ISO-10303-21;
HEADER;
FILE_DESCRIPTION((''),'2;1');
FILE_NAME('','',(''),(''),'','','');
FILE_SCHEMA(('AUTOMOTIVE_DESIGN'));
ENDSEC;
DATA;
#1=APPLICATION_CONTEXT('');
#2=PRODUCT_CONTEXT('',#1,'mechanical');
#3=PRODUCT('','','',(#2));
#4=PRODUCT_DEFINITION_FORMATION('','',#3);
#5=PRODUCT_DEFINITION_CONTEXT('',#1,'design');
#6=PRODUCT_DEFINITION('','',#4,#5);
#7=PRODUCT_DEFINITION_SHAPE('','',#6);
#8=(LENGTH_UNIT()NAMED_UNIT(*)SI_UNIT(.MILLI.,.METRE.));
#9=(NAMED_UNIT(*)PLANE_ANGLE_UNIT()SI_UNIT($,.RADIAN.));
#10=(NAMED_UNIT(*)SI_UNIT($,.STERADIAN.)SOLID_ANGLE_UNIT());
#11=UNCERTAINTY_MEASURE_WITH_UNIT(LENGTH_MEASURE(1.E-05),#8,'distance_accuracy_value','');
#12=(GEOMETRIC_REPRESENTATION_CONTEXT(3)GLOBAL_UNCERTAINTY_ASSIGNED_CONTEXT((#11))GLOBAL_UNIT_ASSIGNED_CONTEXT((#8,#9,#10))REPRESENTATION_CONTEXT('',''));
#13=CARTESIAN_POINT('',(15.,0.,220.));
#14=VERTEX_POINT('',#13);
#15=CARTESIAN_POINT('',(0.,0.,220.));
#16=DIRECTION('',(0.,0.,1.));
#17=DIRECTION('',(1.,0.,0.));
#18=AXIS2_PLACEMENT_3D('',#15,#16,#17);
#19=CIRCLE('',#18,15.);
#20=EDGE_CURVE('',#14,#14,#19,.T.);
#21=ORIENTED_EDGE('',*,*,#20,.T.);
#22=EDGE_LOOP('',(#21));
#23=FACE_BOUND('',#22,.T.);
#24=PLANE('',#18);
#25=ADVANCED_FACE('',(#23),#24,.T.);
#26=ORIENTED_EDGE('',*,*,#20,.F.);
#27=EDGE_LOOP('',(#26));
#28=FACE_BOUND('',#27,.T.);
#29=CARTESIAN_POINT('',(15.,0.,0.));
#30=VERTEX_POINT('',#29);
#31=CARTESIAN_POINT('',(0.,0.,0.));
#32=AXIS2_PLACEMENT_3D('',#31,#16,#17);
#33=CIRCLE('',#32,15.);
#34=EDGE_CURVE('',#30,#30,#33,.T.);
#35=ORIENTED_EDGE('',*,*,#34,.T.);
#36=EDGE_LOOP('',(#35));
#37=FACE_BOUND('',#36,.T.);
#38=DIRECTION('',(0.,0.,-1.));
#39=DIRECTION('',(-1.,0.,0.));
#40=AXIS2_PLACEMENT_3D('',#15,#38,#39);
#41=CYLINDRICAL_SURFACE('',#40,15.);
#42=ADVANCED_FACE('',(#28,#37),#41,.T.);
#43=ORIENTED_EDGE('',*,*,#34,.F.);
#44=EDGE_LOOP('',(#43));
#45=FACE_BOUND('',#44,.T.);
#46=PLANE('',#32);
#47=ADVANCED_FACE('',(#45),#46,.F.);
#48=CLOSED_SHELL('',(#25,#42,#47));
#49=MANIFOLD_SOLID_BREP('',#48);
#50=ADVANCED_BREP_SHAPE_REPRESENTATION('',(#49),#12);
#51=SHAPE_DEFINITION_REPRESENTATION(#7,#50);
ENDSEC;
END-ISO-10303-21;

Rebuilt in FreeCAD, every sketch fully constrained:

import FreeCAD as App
import Part
import Sketcher

V = App.Vector
Q = App.Units.Quantity

doc = App.newDocument("Part")
params = doc.addObject("Spreadsheet::Sheet", "Params")
for row, (alias, value) in enumerate([
    ("sketch1_diameter", "30 mm"),
    ("pad1_length", "220 mm"),
], start=1):
    params.set(f"A{row}", alias)
    params.set(f"B{row}", "=" + value)
    params.setAlias(f"B{row}", alias)

body = doc.addObject("PartDesign::Body", "Body")

sketch1 = doc.addObject("Sketcher::SketchObject", "Sketch")
body.addObject(sketch1)
sketch1.AttachmentSupport = (doc.XY_Plane, [""])
sketch1.MapMode = "FlatFace"
sketch1.addGeometry(Part.Circle(V(0, 0, 0), V(0, 0, 1), 15), False)
sketch1.addConstraint(Sketcher.Constraint("Coincident", 0, 3, -1, 1))
sketch1.addConstraint(Sketcher.Constraint("Diameter", 0, Q("30 mm")))
sketch1.setExpression("Constraints[1]", "Params.sketch1_diameter")
pad1 = doc.addObject("PartDesign::Pad", "Pad")
body.addObject(pad1)
pad1.Profile = sketch1
pad1.setExpression("Length", "Params.pad1_length")

doc.recompute()
